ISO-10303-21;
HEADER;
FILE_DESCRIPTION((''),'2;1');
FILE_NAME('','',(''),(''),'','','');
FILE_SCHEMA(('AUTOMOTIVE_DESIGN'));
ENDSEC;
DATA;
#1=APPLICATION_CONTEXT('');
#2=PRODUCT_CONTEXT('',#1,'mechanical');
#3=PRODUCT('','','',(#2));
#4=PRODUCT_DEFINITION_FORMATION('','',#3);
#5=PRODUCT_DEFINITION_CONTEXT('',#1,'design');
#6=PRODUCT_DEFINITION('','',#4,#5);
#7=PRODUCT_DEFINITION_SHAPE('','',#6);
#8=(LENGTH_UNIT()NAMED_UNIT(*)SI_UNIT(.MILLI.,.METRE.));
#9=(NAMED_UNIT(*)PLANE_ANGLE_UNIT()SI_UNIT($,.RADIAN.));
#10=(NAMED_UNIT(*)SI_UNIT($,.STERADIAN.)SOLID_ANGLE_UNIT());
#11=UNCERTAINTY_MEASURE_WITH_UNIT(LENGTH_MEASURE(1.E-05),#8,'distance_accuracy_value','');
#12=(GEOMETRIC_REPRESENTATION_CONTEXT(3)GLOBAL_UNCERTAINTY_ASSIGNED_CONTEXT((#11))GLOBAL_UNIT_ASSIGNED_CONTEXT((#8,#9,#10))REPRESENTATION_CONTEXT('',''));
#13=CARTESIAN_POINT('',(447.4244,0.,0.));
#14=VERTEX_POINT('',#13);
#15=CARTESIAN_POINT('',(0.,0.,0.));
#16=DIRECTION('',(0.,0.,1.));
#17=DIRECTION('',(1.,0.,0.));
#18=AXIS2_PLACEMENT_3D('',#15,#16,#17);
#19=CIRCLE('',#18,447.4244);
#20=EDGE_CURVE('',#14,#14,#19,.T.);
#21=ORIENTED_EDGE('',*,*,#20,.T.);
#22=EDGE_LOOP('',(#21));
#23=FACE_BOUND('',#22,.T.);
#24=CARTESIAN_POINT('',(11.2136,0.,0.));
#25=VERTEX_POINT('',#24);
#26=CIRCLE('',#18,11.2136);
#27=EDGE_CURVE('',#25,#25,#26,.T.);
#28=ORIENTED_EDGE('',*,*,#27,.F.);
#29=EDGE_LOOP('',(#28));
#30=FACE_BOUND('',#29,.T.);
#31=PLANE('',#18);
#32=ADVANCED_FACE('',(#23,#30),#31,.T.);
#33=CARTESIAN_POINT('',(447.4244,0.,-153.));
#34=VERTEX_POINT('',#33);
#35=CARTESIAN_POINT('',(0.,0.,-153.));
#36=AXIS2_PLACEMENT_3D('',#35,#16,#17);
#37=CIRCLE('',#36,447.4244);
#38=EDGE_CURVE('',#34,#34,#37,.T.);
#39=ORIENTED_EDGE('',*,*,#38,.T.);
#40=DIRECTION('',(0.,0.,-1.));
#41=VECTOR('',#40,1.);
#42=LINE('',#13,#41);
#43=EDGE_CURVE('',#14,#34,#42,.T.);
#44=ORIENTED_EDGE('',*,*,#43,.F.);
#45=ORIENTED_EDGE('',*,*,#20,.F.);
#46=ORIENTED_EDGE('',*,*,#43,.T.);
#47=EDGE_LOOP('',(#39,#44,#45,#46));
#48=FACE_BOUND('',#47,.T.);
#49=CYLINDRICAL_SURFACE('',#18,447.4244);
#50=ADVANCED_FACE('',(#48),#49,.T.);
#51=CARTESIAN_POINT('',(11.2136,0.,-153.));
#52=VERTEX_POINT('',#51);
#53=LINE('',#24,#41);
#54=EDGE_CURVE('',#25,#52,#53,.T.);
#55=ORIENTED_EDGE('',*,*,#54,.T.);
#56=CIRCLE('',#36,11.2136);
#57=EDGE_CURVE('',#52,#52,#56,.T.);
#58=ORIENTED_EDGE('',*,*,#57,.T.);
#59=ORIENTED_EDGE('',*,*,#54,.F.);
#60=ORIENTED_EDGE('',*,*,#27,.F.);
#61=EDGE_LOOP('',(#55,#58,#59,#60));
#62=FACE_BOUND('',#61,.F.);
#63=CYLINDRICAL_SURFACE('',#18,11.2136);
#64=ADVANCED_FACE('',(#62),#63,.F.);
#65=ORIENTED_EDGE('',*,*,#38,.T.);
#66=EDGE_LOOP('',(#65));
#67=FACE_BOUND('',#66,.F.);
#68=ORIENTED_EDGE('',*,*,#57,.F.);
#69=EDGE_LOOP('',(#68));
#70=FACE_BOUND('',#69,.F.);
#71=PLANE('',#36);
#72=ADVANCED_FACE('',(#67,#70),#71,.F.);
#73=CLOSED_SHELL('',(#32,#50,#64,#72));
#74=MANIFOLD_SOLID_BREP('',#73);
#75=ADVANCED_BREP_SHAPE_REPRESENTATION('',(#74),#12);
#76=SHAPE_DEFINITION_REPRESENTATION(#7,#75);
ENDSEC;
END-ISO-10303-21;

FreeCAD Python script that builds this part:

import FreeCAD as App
import Part
import Sketcher

V = App.Vector
Q = App.Units.Quantity

doc = App.newDocument("Part")
params = doc.addObject("Spreadsheet::Sheet", "Params")
for row, (alias, value) in enumerate([
    ("pad1_length", "153 mm"),
], start=1):
    params.set(f"A{row}", alias)
    params.set(f"B{row}", "=" + value)
    params.setAlias(f"B{row}", alias)

body = doc.addObject("PartDesign::Body", "Body")

sketch1 = doc.addObject("Sketcher::SketchObject", "Sketch")
body.addObject(sketch1)
sketch1.AttachmentSupport = (doc.XY_Plane, [""])
sketch1.MapMode = "FlatFace"
sketch1.addGeometry(Part.Circle(V(0, 0, 0), V(0, 0, 1), 447.4244), False)
sketch1.addGeometry(Part.Circle(V(0, 0, 0), V(0, 0, 1), 11.2136), False)
sketch1.addConstraint(Sketcher.Constraint("Coincident", 0, 3, -1, 1))
sketch1.addConstraint(Sketcher.Constraint("Coincident", 1, 3, -1, 1))
sketch1.addConstraint(Sketcher.Constraint("Diameter", 0, Q("894.8488 mm")))
sketch1.addConstraint(Sketcher.Constraint("Diameter", 1, Q("22.4272 mm")))
pad1 = doc.addObject("PartDesign::Pad", "Pad")
body.addObject(pad1)
pad1.Profile = sketch1
pad1.setExpression("Length", "Params.pad1_length")
pad1.Reversed = True

doc.recompute()
